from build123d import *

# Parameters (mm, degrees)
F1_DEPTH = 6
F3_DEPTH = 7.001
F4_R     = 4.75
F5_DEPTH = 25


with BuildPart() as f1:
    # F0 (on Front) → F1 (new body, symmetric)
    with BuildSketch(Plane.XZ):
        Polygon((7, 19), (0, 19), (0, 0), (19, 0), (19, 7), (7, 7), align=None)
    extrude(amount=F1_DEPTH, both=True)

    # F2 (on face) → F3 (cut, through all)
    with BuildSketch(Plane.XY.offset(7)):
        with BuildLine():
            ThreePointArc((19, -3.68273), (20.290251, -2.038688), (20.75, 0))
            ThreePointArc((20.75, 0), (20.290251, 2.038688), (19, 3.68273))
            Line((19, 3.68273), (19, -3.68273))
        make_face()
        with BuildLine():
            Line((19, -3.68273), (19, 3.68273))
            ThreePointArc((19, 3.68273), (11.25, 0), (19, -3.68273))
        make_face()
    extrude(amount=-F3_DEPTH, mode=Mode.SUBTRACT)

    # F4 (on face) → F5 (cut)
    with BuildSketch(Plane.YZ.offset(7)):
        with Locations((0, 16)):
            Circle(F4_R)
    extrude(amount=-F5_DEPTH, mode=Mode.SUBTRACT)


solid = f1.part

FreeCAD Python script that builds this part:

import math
import FreeCAD as App
import Part
import Sketcher
from FreeCAD import Vector


def add_polygon(sketch, points):
    """Adds a closed chain of lines whose ends are joined by coincident constraints."""
    first, n = sketch.GeometryCount, len(points)
    for a, b in zip(points, points[1:] + points[:1]):
        sketch.addGeometry(Part.LineSegment(App.Vector(*a, 0), App.Vector(*b, 0)), False)
    for i in range(n):
        sketch.addConstraint(Sketcher.Constraint("Coincident", first + i, 2, first + (i + 1) % n, 1))

doc = App.newDocument("Part")
params = doc.addObject("Spreadsheet::Sheet", "Params")
for row, (alias, value) in enumerate([
    ("sketch1_width", "7 mm"),
    ("sketch1_width2", "19 mm"),
    ("pad1_length", "12 mm"),
    ("sketch2_radius", "4.75 mm"),
    ("sketch3_diameter", "9.5 mm"),
    ("pocket2_length", "25 mm"),
], start=1):
    params.set(f"A{row}", alias)
    params.set(f"B{row}", "=" + value)
    params.setAlias(f"B{row}", alias)

body = doc.addObject("PartDesign::Body", "Body")

# Sketch on XZ plane
sketch1 = doc.addObject("Sketcher::SketchObject", "Sketch")
body.addObject(sketch1)
sketch1.AttachmentSupport = (doc.XZ_Plane, [""])
sketch1.MapMode = "FlatFace"
add_polygon(sketch1, [(7, 19), (0, 19), (0, 0), (19, 0), (19, 7), (7, 7)])  # lines 0-5
sketch1.addConstraint(Sketcher.Constraint("Horizontal", 0))
sketch1.addConstraint(Sketcher.Constraint("Vertical", 1))
sketch1.addConstraint(Sketcher.Constraint("Horizontal", 2))
sketch1.addConstraint(Sketcher.Constraint("Vertical", 3))
sketch1.addConstraint(Sketcher.Constraint("Horizontal", 4))
sketch1.addConstraint(Sketcher.Constraint("Vertical", 5))
sketch1.addConstraint(Sketcher.Constraint("Coincident", 1, 2, -1, 1))
sketch1.addConstraint(Sketcher.Constraint("Equal", 2, 1))
sketch1.addConstraint(Sketcher.Constraint("Equal", 0, 3))
sketch1.addConstraint(Sketcher.Constraint("DistanceX", 0, 2, 0, 1, 7.0))
sketch1.addConstraint(Sketcher.Constraint("DistanceX", 2, 1, 2, 2, 19.0))
sketch1.setExpression("Constraints[15]", "Params.sketch1_width")
sketch1.setExpression("Constraints[16]", "Params.sketch1_width2")
pad1 = doc.addObject("PartDesign::Pad", "Pad")
body.addObject(pad1)
pad1.Profile = sketch1
pad1.setExpression("Length", "Params.pad1_length")
pad1.Midplane = True

# Sketch on XY plane
sketch2 = doc.addObject("Sketcher::SketchObject", "Sketch001")
body.addObject(sketch2)
sketch2.AttachmentSupport = (doc.XY_Plane, [""])
sketch2.MapMode = "FlatFace"
sketch2.AttachmentOffset = App.Placement(Vector(0, 0, 7), App.Rotation())
sketch2.addGeometry(Part.ArcOfCircle(Part.Circle(Vector(16, 0, 0), Vector(0, 0, 1), 4.7), math.radians(-51), math.radians(0)), False)
sketch2.addGeometry(Part.ArcOfCircle(Part.Circle(Vector(16, 0, 0), Vector(0, 0, 1), 4.7), math.radians(0), math.radians(51)), False)
sketch2.addGeometry(Part.ArcOfCircle(Part.Circle(Vector(16, 0, 0), Vector(0, 0, 1), 4.8), math.radians(51), math.radians(309)), False)
sketch2.addConstraint(Sketcher.Constraint("Tangent", 0, 2, 1, 1))
sketch2.addConstraint(Sketcher.Constraint("Tangent", 1, 2, 2, 1))
sketch2.addConstraint(Sketcher.Constraint("Tangent", 2, 2, 0, 1))
sketch2.addConstraint(Sketcher.Constraint("Symmetric", 1, 2, 2, 2, -1))
sketch2.addConstraint(Sketcher.Constraint("PointOnObject", 0, 2, -1))
sketch2.addConstraint(Sketcher.Constraint("Radius", 2, 4.75))
sketch2.addConstraint(Sketcher.Constraint("DistanceX", -1, 1, 2, 3, 16.0))
sketch2.addConstraint(Sketcher.Constraint("DistanceX", -1, 1, 1, 2, 19.0))
sketch2.setExpression("Constraints[5]", "Params.sketch2_radius")
pocket1 = doc.addObject("PartDesign::Pocket", "Pocket")
body.addObject(pocket1)
pocket1.Profile = sketch2
pocket1.Type = "ThroughAll"

# Sketch on YZ plane
sketch3 = doc.addObject("Sketcher::SketchObject", "Sketch002")
body.addObject(sketch3)
sketch3.AttachmentSupport = (doc.YZ_Plane, [""])
sketch3.MapMode = "FlatFace"
sketch3.AttachmentOffset = App.Placement(Vector(0, 0, 7), App.Rotation())
sketch3.addGeometry(Part.Circle(Vector(0, 16, 0), Vector(0, 0, 1), 4.8), False)
sketch3.addConstraint(Sketcher.Constraint("PointOnObject", 0, 3, -2))
sketch3.addConstraint(Sketcher.Constraint("Diameter", 0, 9.5))
sketch3.addConstraint(Sketcher.Constraint("DistanceY", -1, 1, 0, 3, 16.0))
sketch3.setExpression("Constraints[1]", "Params.sketch3_diameter")
pocket2 = doc.addObject("PartDesign::Pocket", "Pocket001")
body.addObject(pocket2)
pocket2.Profile = sketch3
pocket2.setExpression("Length", "Params.pocket2_length")

doc.recompute()
